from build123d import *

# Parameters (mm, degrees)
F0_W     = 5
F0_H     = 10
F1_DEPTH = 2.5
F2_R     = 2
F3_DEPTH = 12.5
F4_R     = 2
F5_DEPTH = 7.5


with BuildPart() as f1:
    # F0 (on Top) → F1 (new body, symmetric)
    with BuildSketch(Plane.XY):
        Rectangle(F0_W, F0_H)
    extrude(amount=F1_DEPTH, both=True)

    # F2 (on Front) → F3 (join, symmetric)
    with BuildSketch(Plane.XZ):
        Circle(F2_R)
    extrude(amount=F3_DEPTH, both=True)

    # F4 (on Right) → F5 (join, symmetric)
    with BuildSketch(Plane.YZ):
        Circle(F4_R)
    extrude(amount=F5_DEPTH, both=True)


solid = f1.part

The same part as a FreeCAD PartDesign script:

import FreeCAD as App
import Part
import Sketcher
from FreeCAD import Vector


def add_polygon(sketch, points):
    """Adds a closed chain of lines whose ends are joined by coincident constraints."""
    first, n = sketch.GeometryCount, len(points)
    for a, b in zip(points, points[1:] + points[:1]):
        sketch.addGeometry(Part.LineSegment(App.Vector(*a, 0), App.Vector(*b, 0)), False)
    for i in range(n):
        sketch.addConstraint(Sketcher.Constraint("Coincident", first + i, 2, first + (i + 1) % n, 1))

doc = App.newDocument("Part")
params = doc.addObject("Spreadsheet::Sheet", "Params")
for row, (alias, value) in enumerate([
    ("sketch1_width", "5 mm"),
    ("sketch1_height", "10 mm"),
    ("pad1_length", "5 mm"),
    ("sketch2_diameter", "4 mm"),
    ("pad2_length", "25 mm"),
    ("sketch3_diameter", "4 mm"),
    ("pad3_length", "15 mm"),
], start=1):
    params.set(f"A{row}", alias)
    params.set(f"B{row}", "=" + value)
    params.setAlias(f"B{row}", alias)

body = doc.addObject("PartDesign::Body", "Body")

# Sketch on XY plane
sketch1 = doc.addObject("Sketcher::SketchObject", "Sketch")
body.addObject(sketch1)
sketch1.AttachmentSupport = (doc.XY_Plane, [""])
sketch1.MapMode = "FlatFace"
add_polygon(sketch1, [(-2, 5), (-2, -5), (2, -5), (2, 5)])  # lines 0-3
sketch1.addConstraint(Sketcher.Constraint("Vertical", 0))
sketch1.addConstraint(Sketcher.Constraint("Horizontal", 1))
sketch1.addConstraint(Sketcher.Constraint("Vertical", 2))
sketch1.addConstraint(Sketcher.Constraint("Horizontal", 3))
sketch1.addConstraint(Sketcher.Constraint("Symmetric", 0, 2, 2, 2, -1, 1))
sketch1.addConstraint(Sketcher.Constraint("DistanceX", 1, 1, 1, 2, 5.0))
sketch1.addConstraint(Sketcher.Constraint("DistanceY", 0, 2, 0, 1, 10.0))
sketch1.setExpression("Constraints[9]", "Params.sketch1_width")
sketch1.setExpression("Constraints[10]", "Params.sketch1_height")
pad1 = doc.addObject("PartDesign::Pad", "Pad")
body.addObject(pad1)
pad1.Profile = sketch1
pad1.setExpression("Length", "Params.pad1_length")
pad1.Midplane = True

# Sketch on XZ plane
sketch2 = doc.addObject("Sketcher::SketchObject", "Sketch001")
body.addObject(sketch2)
sketch2.AttachmentSupport = (doc.XZ_Plane, [""])
sketch2.MapMode = "FlatFace"
sketch2.addGeometry(Part.Circle(Vector(0, 0, 0), Vector(0, 0, 1), 2), False)
sketch2.addConstraint(Sketcher.Constraint("Coincident", 0, 3, -1, 1))
sketch2.addConstraint(Sketcher.Constraint("Diameter", 0, 4.0))
sketch2.setExpression("Constraints[1]", "Params.sketch2_diameter")
pad2 = doc.addObject("PartDesign::Pad", "Pad001")
body.addObject(pad2)
pad2.Profile = sketch2
pad2.setExpression("Length", "Params.pad2_length")
pad2.Midplane = True

# Sketch on YZ plane
sketch3 = doc.addObject("Sketcher::SketchObject", "Sketch002")
body.addObject(sketch3)
sketch3.AttachmentSupport = (doc.YZ_Plane, [""])
sketch3.MapMode = "FlatFace"
sketch3.addGeometry(Part.Circle(Vector(0, 0, 0), Vector(0, 0, 1), 2), False)
sketch3.addConstraint(Sketcher.Constraint("Coincident", 0, 3, -1, 1))
sketch3.addConstraint(Sketcher.Constraint("Diameter", 0, 4.0))
sketch3.setExpression("Constraints[1]", "Params.sketch3_diameter")
pad3 = doc.addObject("PartDesign::Pad", "Pad002")
body.addObject(pad3)
pad3.Profile = sketch3
pad3.setExpression("Length", "Params.pad3_length")
pad3.Midplane = True

doc.recompute()
